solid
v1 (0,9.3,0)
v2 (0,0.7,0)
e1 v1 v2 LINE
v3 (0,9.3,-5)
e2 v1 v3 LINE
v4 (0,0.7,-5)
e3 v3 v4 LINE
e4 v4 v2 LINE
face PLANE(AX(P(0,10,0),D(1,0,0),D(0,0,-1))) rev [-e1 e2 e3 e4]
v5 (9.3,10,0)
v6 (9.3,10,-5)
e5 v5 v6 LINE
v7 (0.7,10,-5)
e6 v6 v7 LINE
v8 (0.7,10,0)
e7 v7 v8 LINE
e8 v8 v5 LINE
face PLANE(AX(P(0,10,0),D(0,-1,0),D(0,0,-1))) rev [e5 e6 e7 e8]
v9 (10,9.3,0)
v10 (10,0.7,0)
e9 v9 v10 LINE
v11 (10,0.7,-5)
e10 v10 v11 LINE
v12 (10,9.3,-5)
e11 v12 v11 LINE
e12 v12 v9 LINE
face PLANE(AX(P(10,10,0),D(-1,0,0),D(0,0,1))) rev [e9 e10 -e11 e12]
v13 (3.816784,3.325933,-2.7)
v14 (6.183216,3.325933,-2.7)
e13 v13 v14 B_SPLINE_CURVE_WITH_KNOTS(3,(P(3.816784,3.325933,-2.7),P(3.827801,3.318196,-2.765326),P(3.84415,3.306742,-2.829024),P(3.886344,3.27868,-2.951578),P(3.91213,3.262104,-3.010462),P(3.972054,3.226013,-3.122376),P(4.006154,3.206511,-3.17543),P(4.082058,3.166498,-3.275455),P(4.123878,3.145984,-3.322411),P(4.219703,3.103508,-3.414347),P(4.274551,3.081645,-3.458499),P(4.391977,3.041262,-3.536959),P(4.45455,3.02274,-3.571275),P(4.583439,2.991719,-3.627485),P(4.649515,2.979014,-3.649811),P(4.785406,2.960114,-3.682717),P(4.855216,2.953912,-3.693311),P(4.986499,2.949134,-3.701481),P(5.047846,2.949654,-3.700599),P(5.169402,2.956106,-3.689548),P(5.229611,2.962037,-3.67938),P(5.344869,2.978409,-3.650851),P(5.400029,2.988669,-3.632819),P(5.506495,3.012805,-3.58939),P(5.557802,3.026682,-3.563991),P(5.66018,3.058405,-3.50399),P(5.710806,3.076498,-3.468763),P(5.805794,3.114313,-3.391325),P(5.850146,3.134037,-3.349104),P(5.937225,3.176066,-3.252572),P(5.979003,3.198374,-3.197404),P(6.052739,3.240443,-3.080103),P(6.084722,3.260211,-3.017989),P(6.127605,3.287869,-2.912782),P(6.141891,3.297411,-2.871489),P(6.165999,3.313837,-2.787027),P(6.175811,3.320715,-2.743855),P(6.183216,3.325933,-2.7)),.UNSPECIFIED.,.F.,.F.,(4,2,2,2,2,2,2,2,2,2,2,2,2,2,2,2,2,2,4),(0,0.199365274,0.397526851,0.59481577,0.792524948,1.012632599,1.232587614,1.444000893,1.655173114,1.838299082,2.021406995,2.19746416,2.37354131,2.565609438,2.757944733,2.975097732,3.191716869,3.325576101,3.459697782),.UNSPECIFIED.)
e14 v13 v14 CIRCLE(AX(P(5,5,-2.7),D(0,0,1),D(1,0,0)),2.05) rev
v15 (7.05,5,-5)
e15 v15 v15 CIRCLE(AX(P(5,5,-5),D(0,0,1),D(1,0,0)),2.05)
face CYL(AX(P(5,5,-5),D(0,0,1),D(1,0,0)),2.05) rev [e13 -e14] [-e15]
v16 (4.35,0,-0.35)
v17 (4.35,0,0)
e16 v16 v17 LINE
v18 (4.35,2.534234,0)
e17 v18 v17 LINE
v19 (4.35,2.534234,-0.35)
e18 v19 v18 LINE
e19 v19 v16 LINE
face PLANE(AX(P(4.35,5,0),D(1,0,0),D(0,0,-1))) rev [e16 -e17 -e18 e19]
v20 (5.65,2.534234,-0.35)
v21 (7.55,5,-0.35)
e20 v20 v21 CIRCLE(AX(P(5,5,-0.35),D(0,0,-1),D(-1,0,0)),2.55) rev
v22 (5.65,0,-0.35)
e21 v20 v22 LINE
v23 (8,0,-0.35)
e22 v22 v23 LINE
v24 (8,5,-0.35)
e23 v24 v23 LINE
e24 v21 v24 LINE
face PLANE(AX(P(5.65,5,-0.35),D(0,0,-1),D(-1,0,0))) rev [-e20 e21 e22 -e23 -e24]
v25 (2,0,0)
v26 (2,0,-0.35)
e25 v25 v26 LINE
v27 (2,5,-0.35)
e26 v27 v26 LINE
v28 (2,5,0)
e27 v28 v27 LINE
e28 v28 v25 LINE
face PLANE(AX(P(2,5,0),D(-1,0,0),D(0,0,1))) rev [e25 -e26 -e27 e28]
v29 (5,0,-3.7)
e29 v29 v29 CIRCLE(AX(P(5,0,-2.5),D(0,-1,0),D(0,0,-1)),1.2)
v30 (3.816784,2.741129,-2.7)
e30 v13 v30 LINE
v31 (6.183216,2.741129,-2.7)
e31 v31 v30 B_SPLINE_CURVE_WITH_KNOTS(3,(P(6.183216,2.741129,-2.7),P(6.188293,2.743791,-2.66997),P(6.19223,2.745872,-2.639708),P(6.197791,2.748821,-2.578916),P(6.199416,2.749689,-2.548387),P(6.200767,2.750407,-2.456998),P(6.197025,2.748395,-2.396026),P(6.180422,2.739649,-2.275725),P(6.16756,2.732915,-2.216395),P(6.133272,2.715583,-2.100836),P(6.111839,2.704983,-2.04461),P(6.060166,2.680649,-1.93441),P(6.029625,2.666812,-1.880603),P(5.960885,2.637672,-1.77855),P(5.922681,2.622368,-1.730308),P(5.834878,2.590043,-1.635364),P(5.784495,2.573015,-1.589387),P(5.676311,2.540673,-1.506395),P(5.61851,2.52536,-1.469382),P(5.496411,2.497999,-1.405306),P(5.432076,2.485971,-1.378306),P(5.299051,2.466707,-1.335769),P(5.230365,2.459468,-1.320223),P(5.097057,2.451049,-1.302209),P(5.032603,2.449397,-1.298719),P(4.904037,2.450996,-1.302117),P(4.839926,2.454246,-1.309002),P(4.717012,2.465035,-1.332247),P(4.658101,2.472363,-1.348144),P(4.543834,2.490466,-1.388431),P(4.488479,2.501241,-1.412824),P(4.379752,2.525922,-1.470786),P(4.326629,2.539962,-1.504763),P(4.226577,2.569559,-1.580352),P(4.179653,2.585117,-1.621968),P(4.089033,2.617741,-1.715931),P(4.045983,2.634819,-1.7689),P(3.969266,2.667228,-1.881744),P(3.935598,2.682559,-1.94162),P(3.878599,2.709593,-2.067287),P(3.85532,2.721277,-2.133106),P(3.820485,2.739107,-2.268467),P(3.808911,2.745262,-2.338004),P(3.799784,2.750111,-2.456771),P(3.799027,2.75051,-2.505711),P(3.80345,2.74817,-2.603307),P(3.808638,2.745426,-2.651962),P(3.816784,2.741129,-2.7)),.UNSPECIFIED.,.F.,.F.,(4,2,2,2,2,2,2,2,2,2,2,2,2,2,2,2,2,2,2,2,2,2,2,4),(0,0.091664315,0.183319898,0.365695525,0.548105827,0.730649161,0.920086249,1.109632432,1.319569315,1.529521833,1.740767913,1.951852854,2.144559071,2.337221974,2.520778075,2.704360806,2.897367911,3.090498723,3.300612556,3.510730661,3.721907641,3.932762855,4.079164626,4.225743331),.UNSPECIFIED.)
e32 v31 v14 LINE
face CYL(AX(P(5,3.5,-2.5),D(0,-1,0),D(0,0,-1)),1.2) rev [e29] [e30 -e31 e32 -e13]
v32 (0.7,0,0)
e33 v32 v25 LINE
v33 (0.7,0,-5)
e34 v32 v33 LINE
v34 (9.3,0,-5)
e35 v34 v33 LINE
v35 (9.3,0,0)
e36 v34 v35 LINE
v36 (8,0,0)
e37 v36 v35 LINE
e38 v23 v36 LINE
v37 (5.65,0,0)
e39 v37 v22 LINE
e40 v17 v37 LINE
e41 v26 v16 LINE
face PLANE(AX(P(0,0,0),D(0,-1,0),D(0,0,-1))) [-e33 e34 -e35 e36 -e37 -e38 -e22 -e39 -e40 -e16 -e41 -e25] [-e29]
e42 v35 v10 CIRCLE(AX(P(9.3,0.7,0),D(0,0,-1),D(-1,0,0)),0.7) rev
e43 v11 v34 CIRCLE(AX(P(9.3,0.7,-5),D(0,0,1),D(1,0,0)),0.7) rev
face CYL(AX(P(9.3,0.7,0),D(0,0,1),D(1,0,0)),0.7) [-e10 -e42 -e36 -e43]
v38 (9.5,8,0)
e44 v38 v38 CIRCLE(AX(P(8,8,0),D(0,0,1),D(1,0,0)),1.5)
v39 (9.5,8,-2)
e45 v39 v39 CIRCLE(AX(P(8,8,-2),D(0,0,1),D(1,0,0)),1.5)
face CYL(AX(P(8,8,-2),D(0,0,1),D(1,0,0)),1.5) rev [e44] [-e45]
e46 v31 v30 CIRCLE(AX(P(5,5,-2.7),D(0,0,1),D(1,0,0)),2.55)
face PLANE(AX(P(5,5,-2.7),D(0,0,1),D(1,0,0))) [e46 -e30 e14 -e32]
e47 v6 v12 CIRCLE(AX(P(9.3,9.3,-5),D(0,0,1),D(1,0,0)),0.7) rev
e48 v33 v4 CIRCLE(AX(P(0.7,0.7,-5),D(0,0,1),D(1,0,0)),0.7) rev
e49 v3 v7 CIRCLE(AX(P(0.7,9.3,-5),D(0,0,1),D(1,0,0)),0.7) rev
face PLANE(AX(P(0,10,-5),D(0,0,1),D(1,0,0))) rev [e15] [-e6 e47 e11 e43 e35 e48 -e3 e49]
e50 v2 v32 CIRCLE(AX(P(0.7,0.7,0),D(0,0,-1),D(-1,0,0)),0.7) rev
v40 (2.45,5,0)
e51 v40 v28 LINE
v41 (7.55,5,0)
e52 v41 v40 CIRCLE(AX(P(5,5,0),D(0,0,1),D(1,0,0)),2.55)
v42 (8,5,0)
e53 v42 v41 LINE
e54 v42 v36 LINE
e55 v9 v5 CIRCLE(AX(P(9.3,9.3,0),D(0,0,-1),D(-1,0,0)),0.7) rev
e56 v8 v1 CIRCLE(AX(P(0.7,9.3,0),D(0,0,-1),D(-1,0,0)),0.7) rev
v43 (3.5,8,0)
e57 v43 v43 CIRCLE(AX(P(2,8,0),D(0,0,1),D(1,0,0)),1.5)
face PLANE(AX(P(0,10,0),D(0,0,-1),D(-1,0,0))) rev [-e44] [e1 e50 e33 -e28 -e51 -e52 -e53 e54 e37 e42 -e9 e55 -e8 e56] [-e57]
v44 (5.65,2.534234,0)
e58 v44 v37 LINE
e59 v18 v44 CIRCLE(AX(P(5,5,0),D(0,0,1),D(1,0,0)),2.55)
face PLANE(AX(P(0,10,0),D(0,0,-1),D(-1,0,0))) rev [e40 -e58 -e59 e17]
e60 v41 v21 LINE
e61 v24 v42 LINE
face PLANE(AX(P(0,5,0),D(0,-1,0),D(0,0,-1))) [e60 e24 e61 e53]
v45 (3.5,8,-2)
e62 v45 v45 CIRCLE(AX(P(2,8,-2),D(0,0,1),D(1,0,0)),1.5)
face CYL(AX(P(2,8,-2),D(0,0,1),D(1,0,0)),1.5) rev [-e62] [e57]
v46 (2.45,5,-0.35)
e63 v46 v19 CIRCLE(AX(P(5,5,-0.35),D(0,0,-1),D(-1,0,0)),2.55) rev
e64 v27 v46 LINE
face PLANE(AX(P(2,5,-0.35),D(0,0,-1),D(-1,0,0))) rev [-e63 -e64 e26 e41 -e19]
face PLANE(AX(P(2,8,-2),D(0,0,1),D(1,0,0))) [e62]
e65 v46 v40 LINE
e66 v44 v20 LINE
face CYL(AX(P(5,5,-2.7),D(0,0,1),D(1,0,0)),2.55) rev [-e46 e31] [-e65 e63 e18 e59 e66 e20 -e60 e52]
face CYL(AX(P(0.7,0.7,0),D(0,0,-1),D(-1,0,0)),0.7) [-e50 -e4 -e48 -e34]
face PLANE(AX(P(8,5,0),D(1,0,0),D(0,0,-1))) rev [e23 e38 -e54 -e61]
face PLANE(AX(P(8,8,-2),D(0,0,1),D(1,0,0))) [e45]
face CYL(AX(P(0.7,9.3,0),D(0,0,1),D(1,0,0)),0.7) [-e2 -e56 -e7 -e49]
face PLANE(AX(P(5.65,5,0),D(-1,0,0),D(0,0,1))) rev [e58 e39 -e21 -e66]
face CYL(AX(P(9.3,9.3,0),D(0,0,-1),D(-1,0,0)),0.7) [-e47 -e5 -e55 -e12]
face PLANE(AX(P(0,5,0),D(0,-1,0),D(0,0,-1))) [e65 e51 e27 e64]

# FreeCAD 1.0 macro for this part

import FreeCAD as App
import Part
import Sketcher

V = App.Vector
Q = App.Units.Quantity


def edges_at(feature, points):
    """Names of the edges that pass closest to the given points."""
    edges = feature.Shape.Edges
    near = lambda p: min(range(len(edges)), key=lambda i: edges[i].distToShape(Part.Vertex(*p))[0])
    return sorted({f"Edge{near(p) + 1}" for p in points})


def add_polygon(sketch, points):
    """Adds a closed chain of lines whose ends are joined by coincident constraints."""
    first, n = sketch.GeometryCount, len(points)
    for a, b in zip(points, points[1:] + points[:1]):
        sketch.addGeometry(Part.LineSegment(App.Vector(*a, 0), App.Vector(*b, 0)), False)
    for i in range(n):
        sketch.addConstraint(Sketcher.Constraint("Coincident", first + i, 2, first + (i + 1) % n, 1))

doc = App.newDocument("Part")
params = doc.addObject("Spreadsheet::Sheet", "Params")
for row, (alias, value) in enumerate([
    ("sketch1_width", "10 mm"),
    ("sketch1_height", "5 mm"),
    ("pad1_length", "10 mm"),
    ("sketch2_diameter", "4.1 mm"),
    ("sketch3_diameter", "5.1 mm"),
    ("pocket2_length", "2.7 mm"),
    ("sketch4_width", "2.35 mm"),
    ("sketch4_height", "0.35 mm"),
    ("pocket3_length", "5 mm"),
    ("sketch5_diameter", "3 mm"),
    ("pocket4_length", "2 mm"),
    ("sketch6_diameter", "2.4 mm"),
    ("pocket5_length", "3.5 mm"),
    ("fillet_radius", "0.7 mm"),
], start=1):
    params.set(f"A{row}", alias)
    params.set(f"B{row}", "=" + value)
    params.setAlias(f"B{row}", alias)

body = doc.addObject("PartDesign::Body", "Body")

# Sketch on XZ plane
sketch1 = body.newObject("Sketcher::SketchObject", "Sketch")
sketch1.AttachmentSupport = (doc.getObject("XZ_Plane"), [""])
sketch1.MapMode = "FlatFace"
add_polygon(sketch1, [(0, -5), (0, 0), (10, 0), (10, -5)])  # lines 0-3
sketch1.addConstraint(Sketcher.Constraint("Vertical", 0))
sketch1.addConstraint(Sketcher.Constraint("Horizontal", 1))
sketch1.addConstraint(Sketcher.Constraint("Vertical", 2))
sketch1.addConstraint(Sketcher.Constraint("Horizontal", 3))
sketch1.addConstraint(Sketcher.Constraint("Coincident", 0, 2, -1, 1))
sketch1.addConstraint(Sketcher.Constraint("DistanceX", 1, 1, 1, 2, Q("10 mm")))
sketch1.addConstraint(Sketcher.Constraint("DistanceY", 0, 1, 0, 2, Q("5 mm")))
sketch1.setExpression("Constraints[9]", "Params.sketch1_width")
sketch1.setExpression("Constraints[10]", "Params.sketch1_height")
pad1 = body.newObject("PartDesign::Pad", "Pad")
pad1.Profile = sketch1
pad1.setExpression("Length", "Params.pad1_length")
pad1.Reversed = True

# Sketch on XY plane
sketch2 = body.newObject("Sketcher::SketchObject", "Sketch001")
sketch2.AttachmentSupport = (doc.getObject("XY_Plane"), [""])
sketch2.MapMode = "FlatFace"
sketch2.addGeometry(Part.Circle(V(5, 5, 0), V(0, 0, 1), 2.05), False)
sketch2.addConstraint(Sketcher.Constraint("Diameter", 0, Q("4.1 mm")))
sketch2.addConstraint(Sketcher.Constraint("DistanceX", -1, 1, 0, 3, Q("5 mm")))
sketch2.addConstraint(Sketcher.Constraint("DistanceY", -1, 1, 0, 3, Q("5 mm")))
sketch2.setExpression("Constraints[0]", "Params.sketch2_diameter")
pocket1 = body.newObject("PartDesign::Pocket", "Pocket")
pocket1.Profile = sketch2
pocket1.Type = "ThroughAll"

# Sketch on XY plane
sketch3 = body.newObject("Sketcher::SketchObject", "Sketch002")
sketch3.AttachmentSupport = (doc.getObject("XY_Plane"), [""])
sketch3.MapMode = "FlatFace"
sketch3.addGeometry(Part.Circle(V(5, 5, 0), V(0, 0, 1), 2.55), False)
sketch3.addConstraint(Sketcher.Constraint("Diameter", 0, Q("5.1 mm")))
sketch3.addConstraint(Sketcher.Constraint("DistanceX", -1, 1, 0, 3, Q("5 mm")))
sketch3.addConstraint(Sketcher.Constraint("DistanceY", -1, 1, 0, 3, Q("5 mm")))
sketch3.setExpression("Constraints[0]", "Params.sketch3_diameter")
pocket2 = body.newObject("PartDesign::Pocket", "Pocket001")
pocket2.Profile = sketch3
pocket2.setExpression("Length", "Params.pocket2_length")

# Sketch on XZ plane
sketch4 = body.newObject("Sketcher::SketchObject", "Sketch003")
sketch4.AttachmentSupport = (doc.getObject("XZ_Plane"), [""])
sketch4.MapMode = "FlatFace"
add_polygon(sketch4, [(2, 0), (2, -0.35), (4.35, -0.35), (4.35, 0)])  # lines 0-3
add_polygon(sketch4, [(5.65, 0), (5.65, -0.35), (8, -0.35), (8, 0)])  # lines 4-7
sketch4.addConstraint(Sketcher.Constraint("Vertical", 0))
sketch4.addConstraint(Sketcher.Constraint("Horizontal", 1))
sketch4.addConstraint(Sketcher.Constraint("Vertical", 2))
sketch4.addConstraint(Sketcher.Constraint("Horizontal", 3))
sketch4.addConstraint(Sketcher.Constraint("Vertical", 4))
sketch4.addConstraint(Sketcher.Constraint("Horizontal", 5))
sketch4.addConstraint(Sketcher.Constraint("Vertical", 6))
sketch4.addConstraint(Sketcher.Constraint("Horizontal", 7))
sketch4.addConstraint(Sketcher.Constraint("PointOnObject", 2, 2, -1))
sketch4.addConstraint(Sketcher.Constraint("PointOnObject", 6, 2, -1))
sketch4.addConstraint(Sketcher.Constraint("Horizontal", 1, 2, 4, 2))
sketch4.addConstraint(Sketcher.Constraint("Equal", 3, 5))
sketch4.addConstraint(Sketcher.Constraint("DistanceX", -1, 1, 0, 2, Q("2 mm")))
sketch4.addConstraint(Sketcher.Constraint("DistanceX", -1, 1, 5, 2, Q("8 mm")))
sketch4.addConstraint(Sketcher.Constraint("DistanceX", 1, 1, 1, 2, Q("2.35 mm")))
sketch4.addConstraint(Sketcher.Constraint("DistanceY", 0, 2, 0, 1, Q("0.35 mm")))
sketch4.setExpression("Constraints[22]", "Params.sketch4_width")
sketch4.setExpression("Constraints[23]", "Params.sketch4_height")
pocket3 = body.newObject("PartDesign::Pocket", "Pocket002")
pocket3.Profile = sketch4
pocket3.setExpression("Length", "Params.pocket3_length")

# Sketch on XY plane
sketch5 = body.newObject("Sketcher::SketchObject", "Sketch004")
sketch5.AttachmentSupport = (doc.getObject("XY_Plane"), [""])
sketch5.MapMode = "FlatFace"
sketch5.addGeometry(Part.Circle(V(2, 8, 0), V(0, 0, 1), 1.5), False)
sketch5.addGeometry(Part.Circle(V(8, 8, 0), V(0, 0, 1), 1.5), False)
sketch5.addConstraint(Sketcher.Constraint("Equal", 0, 1))
sketch5.addConstraint(Sketcher.Constraint("Horizontal", 0, 3, 1, 3))
sketch5.addConstraint(Sketcher.Constraint("Diameter", 0, Q("3 mm")))
sketch5.addConstraint(Sketcher.Constraint("DistanceX", -1, 1, 0, 3, Q("2 mm")))
sketch5.addConstraint(Sketcher.Constraint("DistanceY", -1, 1, 0, 3, Q("8 mm")))
sketch5.addConstraint(Sketcher.Constraint("DistanceX", -1, 1, 1, 3, Q("8 mm")))
sketch5.setExpression("Constraints[2]", "Params.sketch5_diameter")
pocket4 = body.newObject("PartDesign::Pocket", "Pocket003")
pocket4.Profile = sketch5
pocket4.setExpression("Length", "Params.pocket4_length")

# Sketch on XZ plane
sketch6 = body.newObject("Sketcher::SketchObject", "Sketch005")
sketch6.AttachmentSupport = (doc.getObject("XZ_Plane"), [""])
sketch6.MapMode = "FlatFace"
sketch6.addGeometry(Part.Circle(V(5, -2.5, 0), V(0, 0, 1), 1.2), False)
sketch6.addConstraint(Sketcher.Constraint("Diameter", 0, Q("2.4 mm")))
sketch6.addConstraint(Sketcher.Constraint("DistanceX", -1, 1, 0, 3, Q("5 mm")))
sketch6.addConstraint(Sketcher.Constraint("DistanceY", 0, 3, -1, 1, Q("2.5 mm")))
sketch6.setExpression("Constraints[0]", "Params.sketch6_diameter")
pocket5 = body.newObject("PartDesign::Pocket", "Pocket004")
pocket5.Profile = sketch6
pocket5.setExpression("Length", "Params.pocket5_length")
doc.recompute()

fillet = body.newObject("PartDesign::Fillet", "Fillet")
fillet.Base = (pocket5, edges_at(pocket5, [
    (10, 10, -2.5),
    (0, 10, -2.5),
    (10, 0, -2.5),
    (0, 0, -2.5),
]))
fillet.setExpression("Radius", "Params.fillet_radius")

doc.recompute()
